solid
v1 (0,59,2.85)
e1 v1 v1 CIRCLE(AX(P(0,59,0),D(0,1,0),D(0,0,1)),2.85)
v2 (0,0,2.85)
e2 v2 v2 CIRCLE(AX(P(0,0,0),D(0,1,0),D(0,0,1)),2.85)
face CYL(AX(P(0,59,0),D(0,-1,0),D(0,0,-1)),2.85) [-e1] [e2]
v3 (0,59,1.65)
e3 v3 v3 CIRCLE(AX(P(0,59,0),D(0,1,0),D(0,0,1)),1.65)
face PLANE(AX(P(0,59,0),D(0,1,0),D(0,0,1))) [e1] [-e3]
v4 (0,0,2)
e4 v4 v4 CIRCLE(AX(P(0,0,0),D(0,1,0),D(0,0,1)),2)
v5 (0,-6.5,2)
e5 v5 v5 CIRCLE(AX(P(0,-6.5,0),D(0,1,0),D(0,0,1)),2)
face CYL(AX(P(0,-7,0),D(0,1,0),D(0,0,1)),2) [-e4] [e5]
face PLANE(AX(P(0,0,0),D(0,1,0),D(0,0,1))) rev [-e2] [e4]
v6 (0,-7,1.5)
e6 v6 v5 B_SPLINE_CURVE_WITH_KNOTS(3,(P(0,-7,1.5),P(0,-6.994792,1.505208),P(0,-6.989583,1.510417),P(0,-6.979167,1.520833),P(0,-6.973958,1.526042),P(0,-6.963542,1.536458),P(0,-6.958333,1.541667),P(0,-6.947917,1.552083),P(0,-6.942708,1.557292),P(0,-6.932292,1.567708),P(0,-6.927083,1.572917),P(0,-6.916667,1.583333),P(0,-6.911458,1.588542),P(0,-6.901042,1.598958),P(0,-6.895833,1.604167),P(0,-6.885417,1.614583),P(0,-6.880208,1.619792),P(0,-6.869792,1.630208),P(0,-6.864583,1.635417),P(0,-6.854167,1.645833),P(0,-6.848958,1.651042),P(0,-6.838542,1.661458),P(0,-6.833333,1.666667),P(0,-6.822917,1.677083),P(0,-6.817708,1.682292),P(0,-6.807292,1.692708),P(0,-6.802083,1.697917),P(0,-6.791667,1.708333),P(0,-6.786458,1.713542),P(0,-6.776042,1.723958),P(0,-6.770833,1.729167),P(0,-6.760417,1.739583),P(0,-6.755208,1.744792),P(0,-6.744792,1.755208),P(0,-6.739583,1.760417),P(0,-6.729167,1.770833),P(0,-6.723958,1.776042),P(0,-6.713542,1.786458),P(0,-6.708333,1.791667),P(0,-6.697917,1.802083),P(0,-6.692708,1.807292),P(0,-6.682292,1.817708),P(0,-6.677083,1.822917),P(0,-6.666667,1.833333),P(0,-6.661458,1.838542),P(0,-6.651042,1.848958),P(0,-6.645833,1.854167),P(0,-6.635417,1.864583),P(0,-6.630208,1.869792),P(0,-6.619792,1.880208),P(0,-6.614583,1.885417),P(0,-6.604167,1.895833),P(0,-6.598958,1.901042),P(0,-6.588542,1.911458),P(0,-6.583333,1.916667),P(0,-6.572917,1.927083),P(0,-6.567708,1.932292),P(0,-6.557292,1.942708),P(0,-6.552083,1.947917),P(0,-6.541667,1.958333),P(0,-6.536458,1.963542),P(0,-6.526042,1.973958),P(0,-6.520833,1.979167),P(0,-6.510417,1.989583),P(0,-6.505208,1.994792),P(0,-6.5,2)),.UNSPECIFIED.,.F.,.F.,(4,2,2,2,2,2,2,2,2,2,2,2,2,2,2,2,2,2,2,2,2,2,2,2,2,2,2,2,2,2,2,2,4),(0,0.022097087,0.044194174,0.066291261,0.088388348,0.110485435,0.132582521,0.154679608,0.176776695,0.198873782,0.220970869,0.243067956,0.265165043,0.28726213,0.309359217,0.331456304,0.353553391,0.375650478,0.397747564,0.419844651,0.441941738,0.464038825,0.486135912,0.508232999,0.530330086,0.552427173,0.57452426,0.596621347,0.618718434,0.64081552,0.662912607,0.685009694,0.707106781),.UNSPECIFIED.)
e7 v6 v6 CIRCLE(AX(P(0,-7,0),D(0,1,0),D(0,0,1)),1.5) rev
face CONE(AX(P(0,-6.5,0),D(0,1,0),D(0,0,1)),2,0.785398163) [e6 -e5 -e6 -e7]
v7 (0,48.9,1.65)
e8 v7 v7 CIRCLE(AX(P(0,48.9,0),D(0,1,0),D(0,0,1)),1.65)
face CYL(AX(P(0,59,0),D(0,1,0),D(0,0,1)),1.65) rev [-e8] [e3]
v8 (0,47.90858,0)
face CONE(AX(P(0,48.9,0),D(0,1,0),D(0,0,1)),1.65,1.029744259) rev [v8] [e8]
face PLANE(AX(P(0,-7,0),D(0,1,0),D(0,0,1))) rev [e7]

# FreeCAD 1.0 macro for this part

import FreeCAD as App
import Part
import Sketcher


def edges_at(feature, points):
    """Names of the edges that pass closest to the given points."""
    edges = feature.Shape.Edges
    near = lambda p: min(range(len(edges)), key=lambda i: edges[i].distToShape(Part.Vertex(*p))[0])
    return sorted({f"Edge{near(p) + 1}" for p in points})

doc = App.newDocument("Part")
body = doc.addObject("PartDesign::Body", "Body")

sketch1 = body.newObject("Sketcher::SketchObject", "Sketch")
sketch1.AttachmentSupport = (doc.getObject("XZ_Plane"), [""])
sketch1.MapMode = "FlatFace"
sketch1.addGeometry(Part.Circle(App.Vector(0, 0, 0), App.Vector(0, 0, 1), 2.9), False)
sketch1.addConstraint([
    Sketcher.Constraint("Coincident", 0, 3, -1, 1),
    Sketcher.Constraint("Diameter", 0, 5.7),
])
pad1 = body.newObject("PartDesign::Pad", "Pad")
pad1.Profile = sketch1
pad1.Length = 59
pad1.Reversed = True

sketch2 = body.newObject("Sketcher::SketchObject", "Sketch001")
sketch2.AttachmentSupport = (doc.getObject("XZ_Plane"), [""])
sketch2.MapMode = "FlatFace"
sketch2.addGeometry(Part.Circle(App.Vector(0, 0, 0), App.Vector(0, 0, 1), 2), False)
sketch2.addConstraint([
    Sketcher.Constraint("Coincident", 0, 3, -1, 1),
    Sketcher.Constraint("Diameter", 0, 4.0),
])
pad2 = body.newObject("PartDesign::Pad", "Pad001")
pad2.Profile = sketch2
pad2.Length = 7

sketch3 = body.newObject("Sketcher::SketchObject", "Sketch002")
sketch3.AttachmentSupport = (doc.getObject("XZ_Plane"), [""])
sketch3.MapMode = "FlatFace"
sketch3.AttachmentOffset = App.Placement(App.Vector(0, 0, -59), App.Rotation())
sketch3.addGeometry(Part.Circle(App.Vector(0, 0, 0), App.Vector(0, 0, 1), 1.6), False)
sketch3.addConstraint([
    Sketcher.Constraint("Coincident", 0, 3, -1, 1),
    Sketcher.Constraint("Diameter", 0, 3.3),
])
doc.recompute()
hole = body.newObject("PartDesign::Hole", "Hole")
hole.Profile = sketch3
hole.ThreadType = "None"
hole.Diameter = 3.3
hole.DepthType = "Dimension"
hole.Depth = 10.1
hole.DrillPoint = "Angled"
hole.DrillPointAngle = 118
hole.Reversed = True
doc.recompute()

chamfer = body.newObject("PartDesign::Chamfer", "Chamfer")
chamfer.Base = (hole, edges_at(hole, [(0, -7, -2)]))
chamfer.Size = 0.5

doc.recompute()
